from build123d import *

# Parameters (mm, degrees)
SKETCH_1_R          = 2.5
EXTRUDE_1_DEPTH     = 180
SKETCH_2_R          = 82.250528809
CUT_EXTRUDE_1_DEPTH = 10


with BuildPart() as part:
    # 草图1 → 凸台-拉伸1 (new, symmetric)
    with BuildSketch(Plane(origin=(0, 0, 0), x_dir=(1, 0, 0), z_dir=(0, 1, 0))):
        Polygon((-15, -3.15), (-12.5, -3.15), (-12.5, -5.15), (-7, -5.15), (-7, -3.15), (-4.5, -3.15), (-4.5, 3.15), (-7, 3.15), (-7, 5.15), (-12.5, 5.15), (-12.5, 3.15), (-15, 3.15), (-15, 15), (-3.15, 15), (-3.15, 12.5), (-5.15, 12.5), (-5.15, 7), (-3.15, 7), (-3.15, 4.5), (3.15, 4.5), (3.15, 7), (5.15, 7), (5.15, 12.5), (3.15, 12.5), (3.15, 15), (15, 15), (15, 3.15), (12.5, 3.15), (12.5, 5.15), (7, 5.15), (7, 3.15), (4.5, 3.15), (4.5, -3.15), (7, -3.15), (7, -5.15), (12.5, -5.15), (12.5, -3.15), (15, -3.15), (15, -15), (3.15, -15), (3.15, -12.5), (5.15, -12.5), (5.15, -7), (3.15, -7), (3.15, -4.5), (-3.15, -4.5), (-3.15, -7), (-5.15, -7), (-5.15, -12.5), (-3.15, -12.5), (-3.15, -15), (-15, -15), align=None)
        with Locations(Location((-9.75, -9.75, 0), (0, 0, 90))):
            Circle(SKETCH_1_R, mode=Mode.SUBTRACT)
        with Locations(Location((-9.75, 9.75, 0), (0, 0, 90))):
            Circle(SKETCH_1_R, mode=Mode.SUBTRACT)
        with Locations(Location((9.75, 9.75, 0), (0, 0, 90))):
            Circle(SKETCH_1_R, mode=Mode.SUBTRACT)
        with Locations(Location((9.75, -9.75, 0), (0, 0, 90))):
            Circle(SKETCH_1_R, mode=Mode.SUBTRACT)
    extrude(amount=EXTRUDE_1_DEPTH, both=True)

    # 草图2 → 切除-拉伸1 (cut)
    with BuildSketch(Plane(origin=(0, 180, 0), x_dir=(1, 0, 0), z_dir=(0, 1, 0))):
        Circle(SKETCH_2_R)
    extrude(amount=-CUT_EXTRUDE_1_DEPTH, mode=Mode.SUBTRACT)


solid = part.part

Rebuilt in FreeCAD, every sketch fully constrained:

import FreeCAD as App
import Part
import Sketcher

V = App.Vector
Q = App.Units.Quantity

doc = App.newDocument("Part")
body = doc.addObject("PartDesign::Body", "Body")

sketch1 = body.newObject("Sketcher::SketchObject", "Sketch")
sketch1.AttachmentSupport = (doc.getObject("XZ_Plane"), [""])
sketch1.MapMode = "FlatFace"
sketch1.addGeometry(Part.LineSegment(V(-12.5, 3.15, 0), V(-15, 3.15, 0)), False)
sketch1.addGeometry(Part.LineSegment(V(-15, 3.15, 0), V(-15, 15, 0)), False)
sketch1.addGeometry(Part.LineSegment(V(-15, 15, 0), V(-3.15, 15, 0)), False)
sketch1.addGeometry(Part.LineSegment(V(-3.15, 15, 0), V(-3.15, 12.5, 0)), False)
sketch1.addGeometry(Part.LineSegment(V(-3.15, 12.5, 0), V(-5.15, 12.5, 0)), False)
sketch1.addGeometry(Part.LineSegment(V(-5.15, 12.5, 0), V(-5.15, 7, 0)), False)
sketch1.addGeometry(Part.LineSegment(V(-5.15, 7, 0), V(-3.15, 7, 0)), False)
sketch1.addGeometry(Part.LineSegment(V(-3.15, 7, 0), V(-3.15, 4.5, 0)), False)
sketch1.addGeometry(Part.LineSegment(V(-3.15, 4.5, 0), V(3.15, 4.5, 0)), False)
sketch1.addGeometry(Part.LineSegment(V(3.15, 4.5, 0), V(3.15, 7, 0)), False)
sketch1.addGeometry(Part.LineSegment(V(3.15, 7, 0), V(5.15, 7, 0)), False)
sketch1.addGeometry(Part.LineSegment(V(5.15, 7, 0), V(5.15, 12.5, 0)), False)
sketch1.addGeometry(Part.LineSegment(V(5.15, 12.5, 0), V(3.15, 12.5, 0)), False)
sketch1.addGeometry(Part.LineSegment(V(3.15, 12.5, 0), V(3.15, 15, 0)), False)
sketch1.addGeometry(Part.LineSegment(V(3.15, 15, 0), V(15, 15, 0)), False)
sketch1.addGeometry(Part.LineSegment(V(15, 15, 0), V(15, 3.15, 0)), False)
sketch1.addGeometry(Part.LineSegment(V(15, 3.15, 0), V(12.5, 3.15, 0)), False)
sketch1.addGeometry(Part.LineSegment(V(12.5, 3.15, 0), V(12.5, 5.15, 0)), False)
sketch1.addGeometry(Part.LineSegment(V(12.5, 5.15, 0), V(7, 5.15, 0)), False)
sketch1.addGeometry(Part.LineSegment(V(7, 5.15, 0), V(7, 3.15, 0)), False)
sketch1.addGeometry(Part.LineSegment(V(7, 3.15, 0), V(4.5, 3.15, 0)), False)
sketch1.addGeometry(Part.LineSegment(V(4.5, 3.15, 0), V(4.5, -3.15, 0)), False)
sketch1.addGeometry(Part.LineSegment(V(4.5, -3.15, 0), V(7, -3.15, 0)), False)
sketch1.addGeometry(Part.LineSegment(V(7, -3.15, 0), V(7, -5.15, 0)), False)
sketch1.addGeometry(Part.LineSegment(V(7, -5.15, 0), V(12.5, -5.15, 0)), False)
sketch1.addGeometry(Part.LineSegment(V(12.5, -5.15, 0), V(12.5, -3.15, 0)), False)
sketch1.addGeometry(Part.LineSegment(V(12.5, -3.15, 0), V(15, -3.15, 0)), False)
sketch1.addGeometry(Part.LineSegment(V(15, -3.15, 0), V(15, -15, 0)), False)
sketch1.addGeometry(Part.LineSegment(V(15, -15, 0), V(3.15, -15, 0)), False)
sketch1.addGeometry(Part.LineSegment(V(3.15, -15, 0), V(3.15, -12.5, 0)), False)
sketch1.addGeometry(Part.LineSegment(V(3.15, -12.5, 0), V(5.15, -12.5, 0)), False)
sketch1.addGeometry(Part.LineSegment(V(5.15, -12.5, 0), V(5.15, -7, 0)), False)
sketch1.addGeometry(Part.LineSegment(V(5.15, -7, 0), V(3.15, -7, 0)), False)
sketch1.addGeometry(Part.LineSegment(V(3.15, -7, 0), V(3.15, -4.5, 0)), False)
sketch1.addGeometry(Part.LineSegment(V(3.15, -4.5, 0), V(-3.15, -4.5, 0)), False)
sketch1.addGeometry(Part.LineSegment(V(-3.15, -4.5, 0), V(-3.15, -7, 0)), False)
sketch1.addGeometry(Part.LineSegment(V(-3.15, -7, 0), V(-5.15, -7, 0)), False)
sketch1.addGeometry(Part.LineSegment(V(-5.15, -7, 0), V(-5.15, -12.5, 0)), False)
sketch1.addGeometry(Part.LineSegment(V(-5.15, -12.5, 0), V(-3.15, -12.5, 0)), False)
sketch1.addGeometry(Part.LineSegment(V(-3.15, -12.5, 0), V(-3.15, -15, 0)), False)
sketch1.addGeometry(Part.LineSegment(V(-3.15, -15, 0), V(-15, -15, 0)), False)
sketch1.addGeometry(Part.LineSegment(V(-15, -15, 0), V(-15, -3.15, 0)), False)
sketch1.addGeometry(Part.LineSegment(V(-15, -3.15, 0), V(-12.5, -3.15, 0)), False)
sketch1.addGeometry(Part.LineSegment(V(-12.5, -3.15, 0), V(-12.5, -5.15, 0)), False)
sketch1.addGeometry(Part.LineSegment(V(-12.5, -5.15, 0), V(-7, -5.15, 0)), False)
sketch1.addGeometry(Part.LineSegment(V(-7, -5.15, 0), V(-7, -3.15, 0)), False)
sketch1.addGeometry(Part.LineSegment(V(-7, -3.15, 0), V(-4.5, -3.15, 0)), False)
sketch1.addGeometry(Part.LineSegment(V(-4.5, -3.15, 0), V(-4.5, 3.15, 0)), False)
sketch1.addGeometry(Part.LineSegment(V(-4.5, 3.15, 0), V(-7, 3.15, 0)), False)
sketch1.addGeometry(Part.LineSegment(V(-7, 3.15, 0), V(-7, 5.15, 0)), False)
sketch1.addGeometry(Part.LineSegment(V(-7, 5.15, 0), V(-12.5, 5.15, 0)), False)
sketch1.addGeometry(Part.LineSegment(V(-12.5, 5.15, 0), V(-12.5, 3.15, 0)), False)
sketch1.addGeometry(Part.Circle(V(9.75, 9.75, 0), V(0, 0, 1), 2.5), False)
sketch1.addGeometry(Part.Circle(V(-9.75, 9.75, 0), V(0, 0, 1), 2.5), False)
sketch1.addGeometry(Part.Circle(V(9.75, -9.75, 0), V(0, 0, 1), 2.5), False)
sketch1.addGeometry(Part.Circle(V(-9.75, -9.75, 0), V(0, 0, 1), 2.5), False)
sketch1.addConstraint(Sketcher.Constraint("Coincident", 0, 2, 1, 1))
sketch1.addConstraint(Sketcher.Constraint("Coincident", 1, 2, 2, 1))
sketch1.addConstraint(Sketcher.Constraint("Coincident", 2, 2, 3, 1))
sketch1.addConstraint(Sketcher.Constraint("Coincident", 3, 2, 4, 1))
sketch1.addConstraint(Sketcher.Constraint("Coincident", 4, 2, 5, 1))
sketch1.addConstraint(Sketcher.Constraint("Coincident", 5, 2, 6, 1))
sketch1.addConstraint(Sketcher.Constraint("Coincident", 6, 2, 7, 1))
sketch1.addConstraint(Sketcher.Constraint("Coincident", 7, 2, 8, 1))
sketch1.addConstraint(Sketcher.Constraint("Coincident", 8, 2, 9, 1))
sketch1.addConstraint(Sketcher.Constraint("Coincident", 9, 2, 10, 1))
sketch1.addConstraint(Sketcher.Constraint("Coincident", 10, 2, 11, 1))
sketch1.addConstraint(Sketcher.Constraint("Coincident", 11, 2, 12, 1))
sketch1.addConstraint(Sketcher.Constraint("Coincident", 12, 2, 13, 1))
sketch1.addConstraint(Sketcher.Constraint("Coincident", 13, 2, 14, 1))
sketch1.addConstraint(Sketcher.Constraint("Coincident", 14, 2, 15, 1))
sketch1.addConstraint(Sketcher.Constraint("Coincident", 15, 2, 16, 1))
sketch1.addConstraint(Sketcher.Constraint("Coincident", 16, 2, 17, 1))
sketch1.addConstraint(Sketcher.Constraint("Coincident", 17, 2, 18, 1))
sketch1.addConstraint(Sketcher.Constraint("Coincident", 18, 2, 19, 1))
sketch1.addConstraint(Sketcher.Constraint("Coincident", 19, 2, 20, 1))
sketch1.addConstraint(Sketcher.Constraint("Coincident", 20, 2, 21, 1))
sketch1.addConstraint(Sketcher.Constraint("Coincident", 21, 2, 22, 1))
sketch1.addConstraint(Sketcher.Constraint("Coincident", 22, 2, 23, 1))
sketch1.addConstraint(Sketcher.Constraint("Coincident", 23, 2, 24, 1))
sketch1.addConstraint(Sketcher.Constraint("Coincident", 24, 2, 25, 1))
sketch1.addConstraint(Sketcher.Constraint("Coincident", 25, 2, 26, 1))
sketch1.addConstraint(Sketcher.Constraint("Coincident", 26, 2, 27, 1))
sketch1.addConstraint(Sketcher.Constraint("Coincident", 27, 2, 28, 1))
sketch1.addConstraint(Sketcher.Constraint("Coincident", 28, 2, 29, 1))
sketch1.addConstraint(Sketcher.Constraint("Coincident", 29, 2, 30, 1))
sketch1.addConstraint(Sketcher.Constraint("Coincident", 30, 2, 31, 1))
sketch1.addConstraint(Sketcher.Constraint("Coincident", 31, 2, 32, 1))
sketch1.addConstraint(Sketcher.Constraint("Coincident", 32, 2, 33, 1))
sketch1.addConstraint(Sketcher.Constraint("Coincident", 33, 2, 34, 1))
sketch1.addConstraint(Sketcher.Constraint("Coincident", 34, 2, 35, 1))
sketch1.addConstraint(Sketcher.Constraint("Coincident", 35, 2, 36, 1))
sketch1.addConstraint(Sketcher.Constraint("Coincident", 36, 2, 37, 1))
sketch1.addConstraint(Sketcher.Constraint("Coincident", 37, 2, 38, 1))
sketch1.addConstraint(Sketcher.Constraint("Coincident", 38, 2, 39, 1))
sketch1.addConstraint(Sketcher.Constraint("Coincident", 39, 2, 40, 1))
sketch1.addConstraint(Sketcher.Constraint("Coincident", 40, 2, 41, 1))
sketch1.addConstraint(Sketcher.Constraint("Coincident", 41, 2, 42, 1))
sketch1.addConstraint(Sketcher.Constraint("Coincident", 42, 2, 43, 1))
sketch1.addConstraint(Sketcher.Constraint("Coincident", 43, 2, 44, 1))
sketch1.addConstraint(Sketcher.Constraint("Coincident", 44, 2, 45, 1))
sketch1.addConstraint(Sketcher.Constraint("Coincident", 45, 2, 46, 1))
sketch1.addConstraint(Sketcher.Constraint("Coincident", 46, 2, 47, 1))
sketch1.addConstraint(Sketcher.Constraint("Coincident", 47, 2, 48, 1))
sketch1.addConstraint(Sketcher.Constraint("Coincident", 48, 2, 49, 1))
sketch1.addConstraint(Sketcher.Constraint("Coincident", 49, 2, 50, 1))
sketch1.addConstraint(Sketcher.Constraint("Coincident", 50, 2, 51, 1))
sketch1.addConstraint(Sketcher.Constraint("Coincident", 51, 2, 0, 1))
sketch1.addConstraint(Sketcher.Constraint("Horizontal", 0))
sketch1.addConstraint(Sketcher.Constraint("Vertical", 1))
sketch1.addConstraint(Sketcher.Constraint("Horizontal", 2))
sketch1.addConstraint(Sketcher.Constraint("Vertical", 3))
sketch1.addConstraint(Sketcher.Constraint("Horizontal", 4))
sketch1.addConstraint(Sketcher.Constraint("Vertical", 5))
sketch1.addConstraint(Sketcher.Constraint("Horizontal", 6))
sketch1.addConstraint(Sketcher.Constraint("Vertical", 7))
sketch1.addConstraint(Sketcher.Constraint("Horizontal", 8))
sketch1.addConstraint(Sketcher.Constraint("Vertical", 9))
sketch1.addConstraint(Sketcher.Constraint("Horizontal", 10))
sketch1.addConstraint(Sketcher.Constraint("Vertical", 11))
sketch1.addConstraint(Sketcher.Constraint("Horizontal", 12))
sketch1.addConstraint(Sketcher.Constraint("Vertical", 13))
sketch1.addConstraint(Sketcher.Constraint("Horizontal", 14))
sketch1.addConstraint(Sketcher.Constraint("Vertical", 15))
sketch1.addConstraint(Sketcher.Constraint("Horizontal", 16))
sketch1.addConstraint(Sketcher.Constraint("Vertical", 17))
sketch1.addConstraint(Sketcher.Constraint("Horizontal", 18))
sketch1.addConstraint(Sketcher.Constraint("Vertical", 19))
sketch1.addConstraint(Sketcher.Constraint("Horizontal", 20))
sketch1.addConstraint(Sketcher.Constraint("Vertical", 21))
sketch1.addConstraint(Sketcher.Constraint("Horizontal", 22))
sketch1.addConstraint(Sketcher.Constraint("Vertical", 23))
sketch1.addConstraint(Sketcher.Constraint("Horizontal", 24))
sketch1.addConstraint(Sketcher.Constraint("Vertical", 25))
sketch1.addConstraint(Sketcher.Constraint("Horizontal", 26))
sketch1.addConstraint(Sketcher.Constraint("Vertical", 27))
sketch1.addConstraint(Sketcher.Constraint("Horizontal", 28))
sketch1.addConstraint(Sketcher.Constraint("Vertical", 29))
sketch1.addConstraint(Sketcher.Constraint("Horizontal", 30))
sketch1.addConstraint(Sketcher.Constraint("Vertical", 31))
sketch1.addConstraint(Sketcher.Constraint("Horizontal", 32))
sketch1.addConstraint(Sketcher.Constraint("Vertical", 33))
sketch1.addConstraint(Sketcher.Constraint("Horizontal", 34))
sketch1.addConstraint(Sketcher.Constraint("Vertical", 35))
sketch1.addConstraint(Sketcher.Constraint("Horizontal", 36))
sketch1.addConstraint(Sketcher.Constraint("Vertical", 37))
sketch1.addConstraint(Sketcher.Constraint("Horizontal", 38))
sketch1.addConstraint(Sketcher.Constraint("Vertical", 39))
sketch1.addConstraint(Sketcher.Constraint("Horizontal", 40))
sketch1.addConstraint(Sketcher.Constraint("Vertical", 41))
sketch1.addConstraint(Sketcher.Constraint("Horizontal", 42))
sketch1.addConstraint(Sketcher.Constraint("Vertical", 43))
sketch1.addConstraint(Sketcher.Constraint("Horizontal", 44))
sketch1.addConstraint(Sketcher.Constraint("Vertical", 45))
sketch1.addConstraint(Sketcher.Constraint("Horizontal", 46))
sketch1.addConstraint(Sketcher.Constraint("Vertical", 47))
sketch1.addConstraint(Sketcher.Constraint("Horizontal", 48))
sketch1.addConstraint(Sketcher.Constraint("Vertical", 49))
sketch1.addConstraint(Sketcher.Constraint("Horizontal", 50))
sketch1.addConstraint(Sketcher.Constraint("Vertical", 51))
sketch1.addConstraint(Sketcher.Constraint("Equal", 52, 53))
sketch1.addConstraint(Sketcher.Constraint("Equal", 53, 54))
sketch1.addConstraint(Sketcher.Constraint("Equal", 54, 55))
sketch1.addConstraint(Sketcher.Constraint("Symmetric", 53, 3, 54, 3, -1, 1))
sketch1.addConstraint(Sketcher.Constraint("Symmetric", 52, 3, 55, 3, -1, 1))
sketch1.addConstraint(Sketcher.Constraint("Symmetric", 0, 2, 26, 2, -1, 1))
sketch1.addConstraint(Sketcher.Constraint("Symmetric", 2, 2, 28, 2, -1, 1))
sketch1.addConstraint(Sketcher.Constraint("Symmetric", 4, 2, 30, 2, -1, 1))
sketch1.addConstraint(Sketcher.Constraint("Symmetric", 6, 2, 32, 2, -1, 1))
sketch1.addConstraint(Sketcher.Constraint("Symmetric", 8, 2, 34, 2, -1, 1))
sketch1.addConstraint(Sketcher.Constraint("Symmetric", 10, 2, 36, 2, -1, 1))
sketch1.addConstraint(Sketcher.Constraint("Symmetric", 12, 2, 38, 2, -1, 1))
sketch1.addConstraint(Sketcher.Constraint("Symmetric", 14, 2, 40, 2, -1, 1))
sketch1.addConstraint(Sketcher.Constraint("Symmetric", 16, 2, 42, 2, -1, 1))
sketch1.addConstraint(Sketcher.Constraint("Symmetric", 18, 2, 44, 2, -1, 1))
sketch1.addConstraint(Sketcher.Constraint("Symmetric", 20, 2, 46, 2, -1, 1))
sketch1.addConstraint(Sketcher.Constraint("Symmetric", 22, 2, 48, 2, -1, 1))
sketch1.addConstraint(Sketcher.Constraint("Symmetric", 24, 2, 50, 2, -1, 1))
sketch1.addConstraint(Sketcher.Constraint("Symmetric", 52, 3, 53, 3, -2))
sketch1.addConstraint(Sketcher.Constraint("Symmetric", 6, 2, 9, 2, -2))
sketch1.addConstraint(Sketcher.Constraint("Symmetric", 4, 2, 11, 2, -2))
sketch1.addConstraint(Sketcher.Constraint("Symmetric", 2, 2, 13, 2, -2))
sketch1.addConstraint(Sketcher.Constraint("Symmetric", 0, 2, 15, 2, -2))
sketch1.addConstraint(Sketcher.Constraint("Symmetric", 24, 2, 43, 2, -2))
sketch1.addConstraint(Sketcher.Constraint("Symmetric", 22, 2, 45, 2, -2))
sketch1.addConstraint(Sketcher.Constraint("Horizontal", 16, 2, 19, 2))
sketch1.addConstraint(Sketcher.Constraint("Vertical", 3, 2, 6, 2))
sketch1.addConstraint(Sketcher.Constraint("Equal", 16, 20))
sketch1.addConstraint(Sketcher.Constraint("Equal", 40, 1))
sketch1.addConstraint(Sketcher.Constraint("Equal", 48, 3))
sketch1.addConstraint(Sketcher.Constraint("Equal", 50, 5))
sketch1.addConstraint(Sketcher.Constraint("Equal", 3, 7))
sketch1.addConstraint(Sketcher.Constraint("Equal", 38, 17))
sketch1.addConstraint(Sketcher.Constraint("Equal", 34, 21))
sketch1.addConstraint(Sketcher.Constraint("Diameter", 52, Q("5 mm")))
sketch1.addConstraint(Sketcher.Constraint("DistanceX", 4, 2, 4, 1, Q("2 mm")))
sketch1.addConstraint(Sketcher.Constraint("DistanceX", 0, 2, 0, 1, Q("2.5 mm")))
sketch1.addConstraint(Sketcher.Constraint("DistanceX", 8, 1, 8, 2, Q("6.3 mm")))
sketch1.addConstraint(Sketcher.Constraint("DistanceX", 18, 2, 18, 1, Q("5.5 mm")))
sketch1.addConstraint(Sketcher.Constraint("DistanceX", 0, 2, -1, 1, Q("15 mm")))
sketch1.addConstraint(Sketcher.Constraint("DistanceX", 53, 3, 52, 3, Q("19.5 mm")))
sketch1.addConstraint(Sketcher.Constraint("DistanceY", 54, 3, 52, 3, Q("19.5 mm")))
pad1 = body.newObject("PartDesign::Pad", "Pad")
pad1.Profile = sketch1
pad1.Length = 360
pad1.Midplane = True

sketch2 = body.newObject("Sketcher::SketchObject", "Sketch001")
sketch2.AttachmentSupport = (doc.getObject("XZ_Plane"), [""])
sketch2.MapMode = "FlatFace"
sketch2.AttachmentOffset = App.Placement(V(0, 0, -180), App.Rotation())
sketch2.addGeometry(Part.Circle(V(0, 0, 0), V(0, 0, 1), 82.250529), False)
sketch2.addConstraint(Sketcher.Constraint("Coincident", 0, 3, -1, 1))
sketch2.addConstraint(Sketcher.Constraint("Diameter", 0, Q("164.501058 mm")))
pocket1 = body.newObject("PartDesign::Pocket", "Pocket")
pocket1.Profile = sketch2
pocket1.Length = 10
pocket1.Reversed = True

doc.recompute()
